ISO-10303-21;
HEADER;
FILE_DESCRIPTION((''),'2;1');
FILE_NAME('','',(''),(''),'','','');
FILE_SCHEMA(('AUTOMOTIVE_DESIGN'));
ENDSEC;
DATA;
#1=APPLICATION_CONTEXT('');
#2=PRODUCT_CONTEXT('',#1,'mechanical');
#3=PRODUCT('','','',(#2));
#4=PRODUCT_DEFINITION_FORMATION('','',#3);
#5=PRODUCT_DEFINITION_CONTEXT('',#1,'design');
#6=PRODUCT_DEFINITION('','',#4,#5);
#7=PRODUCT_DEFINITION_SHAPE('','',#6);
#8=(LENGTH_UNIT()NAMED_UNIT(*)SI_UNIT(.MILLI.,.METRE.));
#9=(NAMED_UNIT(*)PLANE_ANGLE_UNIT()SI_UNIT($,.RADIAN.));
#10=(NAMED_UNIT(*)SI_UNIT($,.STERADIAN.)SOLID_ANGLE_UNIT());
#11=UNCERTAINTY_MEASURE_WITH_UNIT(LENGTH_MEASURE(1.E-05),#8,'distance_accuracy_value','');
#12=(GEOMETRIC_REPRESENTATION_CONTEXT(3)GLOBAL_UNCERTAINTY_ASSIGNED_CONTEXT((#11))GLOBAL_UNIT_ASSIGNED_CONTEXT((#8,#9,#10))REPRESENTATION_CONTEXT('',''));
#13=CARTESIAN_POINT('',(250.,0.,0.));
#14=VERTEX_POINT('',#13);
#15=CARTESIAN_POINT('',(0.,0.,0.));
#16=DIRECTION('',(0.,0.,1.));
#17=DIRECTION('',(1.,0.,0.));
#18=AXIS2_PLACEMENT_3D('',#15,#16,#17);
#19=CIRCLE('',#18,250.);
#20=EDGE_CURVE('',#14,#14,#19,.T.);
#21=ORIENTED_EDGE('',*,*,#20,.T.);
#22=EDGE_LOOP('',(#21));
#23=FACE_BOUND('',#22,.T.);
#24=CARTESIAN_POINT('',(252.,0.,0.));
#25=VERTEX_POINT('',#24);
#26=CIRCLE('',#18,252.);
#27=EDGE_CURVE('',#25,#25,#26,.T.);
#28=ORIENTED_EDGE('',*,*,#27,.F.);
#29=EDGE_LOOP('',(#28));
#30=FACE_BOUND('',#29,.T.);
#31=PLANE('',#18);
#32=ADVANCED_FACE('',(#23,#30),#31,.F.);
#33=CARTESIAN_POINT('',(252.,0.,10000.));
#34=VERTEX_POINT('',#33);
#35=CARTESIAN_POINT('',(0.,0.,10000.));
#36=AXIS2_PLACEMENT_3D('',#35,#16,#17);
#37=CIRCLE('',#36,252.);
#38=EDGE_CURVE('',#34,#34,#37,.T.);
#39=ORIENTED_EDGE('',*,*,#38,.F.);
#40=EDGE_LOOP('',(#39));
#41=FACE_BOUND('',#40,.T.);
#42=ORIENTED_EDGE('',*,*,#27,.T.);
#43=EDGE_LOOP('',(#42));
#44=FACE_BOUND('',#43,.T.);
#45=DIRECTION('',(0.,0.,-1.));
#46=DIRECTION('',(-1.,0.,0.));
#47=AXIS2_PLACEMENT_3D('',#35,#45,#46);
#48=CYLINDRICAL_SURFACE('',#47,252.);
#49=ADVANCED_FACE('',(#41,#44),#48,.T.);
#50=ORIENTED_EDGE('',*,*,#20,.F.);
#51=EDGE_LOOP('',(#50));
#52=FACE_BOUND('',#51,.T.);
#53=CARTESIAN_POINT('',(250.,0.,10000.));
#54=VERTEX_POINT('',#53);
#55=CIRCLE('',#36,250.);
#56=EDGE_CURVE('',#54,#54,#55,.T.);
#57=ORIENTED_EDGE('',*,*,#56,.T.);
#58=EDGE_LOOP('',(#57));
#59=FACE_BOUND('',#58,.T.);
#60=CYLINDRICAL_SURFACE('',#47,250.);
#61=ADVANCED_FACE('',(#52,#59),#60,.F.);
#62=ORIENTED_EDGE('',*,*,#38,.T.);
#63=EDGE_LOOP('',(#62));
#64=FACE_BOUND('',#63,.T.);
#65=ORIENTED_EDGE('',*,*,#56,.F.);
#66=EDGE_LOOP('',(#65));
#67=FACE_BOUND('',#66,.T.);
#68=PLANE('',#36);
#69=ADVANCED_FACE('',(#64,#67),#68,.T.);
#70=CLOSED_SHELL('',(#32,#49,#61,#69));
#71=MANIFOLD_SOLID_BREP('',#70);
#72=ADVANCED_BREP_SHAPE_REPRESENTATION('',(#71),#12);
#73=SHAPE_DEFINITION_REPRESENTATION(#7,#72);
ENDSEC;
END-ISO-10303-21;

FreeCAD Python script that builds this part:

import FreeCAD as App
import Part
import Sketcher
from FreeCAD import Vector
Q = App.Units.Quantity

doc = App.newDocument("Part")
params = doc.addObject("Spreadsheet::Sheet", "Params")
for row, (alias, value) in enumerate([
    ("sketch1_diameter", "504 mm"),
    ("sketch1_diameter2", "500 mm"),
    ("pad1_length", "10000 mm"),
], start=1):
    params.set(f"A{row}", alias)
    params.set(f"B{row}", "=" + value)
    params.setAlias(f"B{row}", alias)

body = doc.addObject("PartDesign::Body", "Body")

sketch1 = body.newObject("Sketcher::SketchObject", "Sketch")
sketch1.AttachmentSupport = (doc.getObject("XY_Plane"), [""])
sketch1.MapMode = "FlatFace"
sketch1.addGeometry(Part.Circle(Vector(0, 0, 0), Vector(0, 0, 1), 252), False)
sketch1.addGeometry(Part.Circle(Vector(0, 0, 0), Vector(0, 0, 1), 250), False)
sketch1.addConstraint(Sketcher.Constraint("Coincident", 0, 3, -1, 1))
sketch1.addConstraint(Sketcher.Constraint("Coincident", 1, 3, -1, 1))
sketch1.addConstraint(Sketcher.Constraint("Diameter", 0, Q("504 mm")))
sketch1.addConstraint(Sketcher.Constraint("Diameter", 1, Q("500 mm")))
sketch1.setExpression("Constraints[2]", "Params.sketch1_diameter")
sketch1.setExpression("Constraints[3]", "Params.sketch1_diameter2")
pad1 = body.newObject("PartDesign::Pad", "Pad")
pad1.Profile = sketch1
pad1.setExpression("Length", "Params.pad1_length")

doc.recompute()
